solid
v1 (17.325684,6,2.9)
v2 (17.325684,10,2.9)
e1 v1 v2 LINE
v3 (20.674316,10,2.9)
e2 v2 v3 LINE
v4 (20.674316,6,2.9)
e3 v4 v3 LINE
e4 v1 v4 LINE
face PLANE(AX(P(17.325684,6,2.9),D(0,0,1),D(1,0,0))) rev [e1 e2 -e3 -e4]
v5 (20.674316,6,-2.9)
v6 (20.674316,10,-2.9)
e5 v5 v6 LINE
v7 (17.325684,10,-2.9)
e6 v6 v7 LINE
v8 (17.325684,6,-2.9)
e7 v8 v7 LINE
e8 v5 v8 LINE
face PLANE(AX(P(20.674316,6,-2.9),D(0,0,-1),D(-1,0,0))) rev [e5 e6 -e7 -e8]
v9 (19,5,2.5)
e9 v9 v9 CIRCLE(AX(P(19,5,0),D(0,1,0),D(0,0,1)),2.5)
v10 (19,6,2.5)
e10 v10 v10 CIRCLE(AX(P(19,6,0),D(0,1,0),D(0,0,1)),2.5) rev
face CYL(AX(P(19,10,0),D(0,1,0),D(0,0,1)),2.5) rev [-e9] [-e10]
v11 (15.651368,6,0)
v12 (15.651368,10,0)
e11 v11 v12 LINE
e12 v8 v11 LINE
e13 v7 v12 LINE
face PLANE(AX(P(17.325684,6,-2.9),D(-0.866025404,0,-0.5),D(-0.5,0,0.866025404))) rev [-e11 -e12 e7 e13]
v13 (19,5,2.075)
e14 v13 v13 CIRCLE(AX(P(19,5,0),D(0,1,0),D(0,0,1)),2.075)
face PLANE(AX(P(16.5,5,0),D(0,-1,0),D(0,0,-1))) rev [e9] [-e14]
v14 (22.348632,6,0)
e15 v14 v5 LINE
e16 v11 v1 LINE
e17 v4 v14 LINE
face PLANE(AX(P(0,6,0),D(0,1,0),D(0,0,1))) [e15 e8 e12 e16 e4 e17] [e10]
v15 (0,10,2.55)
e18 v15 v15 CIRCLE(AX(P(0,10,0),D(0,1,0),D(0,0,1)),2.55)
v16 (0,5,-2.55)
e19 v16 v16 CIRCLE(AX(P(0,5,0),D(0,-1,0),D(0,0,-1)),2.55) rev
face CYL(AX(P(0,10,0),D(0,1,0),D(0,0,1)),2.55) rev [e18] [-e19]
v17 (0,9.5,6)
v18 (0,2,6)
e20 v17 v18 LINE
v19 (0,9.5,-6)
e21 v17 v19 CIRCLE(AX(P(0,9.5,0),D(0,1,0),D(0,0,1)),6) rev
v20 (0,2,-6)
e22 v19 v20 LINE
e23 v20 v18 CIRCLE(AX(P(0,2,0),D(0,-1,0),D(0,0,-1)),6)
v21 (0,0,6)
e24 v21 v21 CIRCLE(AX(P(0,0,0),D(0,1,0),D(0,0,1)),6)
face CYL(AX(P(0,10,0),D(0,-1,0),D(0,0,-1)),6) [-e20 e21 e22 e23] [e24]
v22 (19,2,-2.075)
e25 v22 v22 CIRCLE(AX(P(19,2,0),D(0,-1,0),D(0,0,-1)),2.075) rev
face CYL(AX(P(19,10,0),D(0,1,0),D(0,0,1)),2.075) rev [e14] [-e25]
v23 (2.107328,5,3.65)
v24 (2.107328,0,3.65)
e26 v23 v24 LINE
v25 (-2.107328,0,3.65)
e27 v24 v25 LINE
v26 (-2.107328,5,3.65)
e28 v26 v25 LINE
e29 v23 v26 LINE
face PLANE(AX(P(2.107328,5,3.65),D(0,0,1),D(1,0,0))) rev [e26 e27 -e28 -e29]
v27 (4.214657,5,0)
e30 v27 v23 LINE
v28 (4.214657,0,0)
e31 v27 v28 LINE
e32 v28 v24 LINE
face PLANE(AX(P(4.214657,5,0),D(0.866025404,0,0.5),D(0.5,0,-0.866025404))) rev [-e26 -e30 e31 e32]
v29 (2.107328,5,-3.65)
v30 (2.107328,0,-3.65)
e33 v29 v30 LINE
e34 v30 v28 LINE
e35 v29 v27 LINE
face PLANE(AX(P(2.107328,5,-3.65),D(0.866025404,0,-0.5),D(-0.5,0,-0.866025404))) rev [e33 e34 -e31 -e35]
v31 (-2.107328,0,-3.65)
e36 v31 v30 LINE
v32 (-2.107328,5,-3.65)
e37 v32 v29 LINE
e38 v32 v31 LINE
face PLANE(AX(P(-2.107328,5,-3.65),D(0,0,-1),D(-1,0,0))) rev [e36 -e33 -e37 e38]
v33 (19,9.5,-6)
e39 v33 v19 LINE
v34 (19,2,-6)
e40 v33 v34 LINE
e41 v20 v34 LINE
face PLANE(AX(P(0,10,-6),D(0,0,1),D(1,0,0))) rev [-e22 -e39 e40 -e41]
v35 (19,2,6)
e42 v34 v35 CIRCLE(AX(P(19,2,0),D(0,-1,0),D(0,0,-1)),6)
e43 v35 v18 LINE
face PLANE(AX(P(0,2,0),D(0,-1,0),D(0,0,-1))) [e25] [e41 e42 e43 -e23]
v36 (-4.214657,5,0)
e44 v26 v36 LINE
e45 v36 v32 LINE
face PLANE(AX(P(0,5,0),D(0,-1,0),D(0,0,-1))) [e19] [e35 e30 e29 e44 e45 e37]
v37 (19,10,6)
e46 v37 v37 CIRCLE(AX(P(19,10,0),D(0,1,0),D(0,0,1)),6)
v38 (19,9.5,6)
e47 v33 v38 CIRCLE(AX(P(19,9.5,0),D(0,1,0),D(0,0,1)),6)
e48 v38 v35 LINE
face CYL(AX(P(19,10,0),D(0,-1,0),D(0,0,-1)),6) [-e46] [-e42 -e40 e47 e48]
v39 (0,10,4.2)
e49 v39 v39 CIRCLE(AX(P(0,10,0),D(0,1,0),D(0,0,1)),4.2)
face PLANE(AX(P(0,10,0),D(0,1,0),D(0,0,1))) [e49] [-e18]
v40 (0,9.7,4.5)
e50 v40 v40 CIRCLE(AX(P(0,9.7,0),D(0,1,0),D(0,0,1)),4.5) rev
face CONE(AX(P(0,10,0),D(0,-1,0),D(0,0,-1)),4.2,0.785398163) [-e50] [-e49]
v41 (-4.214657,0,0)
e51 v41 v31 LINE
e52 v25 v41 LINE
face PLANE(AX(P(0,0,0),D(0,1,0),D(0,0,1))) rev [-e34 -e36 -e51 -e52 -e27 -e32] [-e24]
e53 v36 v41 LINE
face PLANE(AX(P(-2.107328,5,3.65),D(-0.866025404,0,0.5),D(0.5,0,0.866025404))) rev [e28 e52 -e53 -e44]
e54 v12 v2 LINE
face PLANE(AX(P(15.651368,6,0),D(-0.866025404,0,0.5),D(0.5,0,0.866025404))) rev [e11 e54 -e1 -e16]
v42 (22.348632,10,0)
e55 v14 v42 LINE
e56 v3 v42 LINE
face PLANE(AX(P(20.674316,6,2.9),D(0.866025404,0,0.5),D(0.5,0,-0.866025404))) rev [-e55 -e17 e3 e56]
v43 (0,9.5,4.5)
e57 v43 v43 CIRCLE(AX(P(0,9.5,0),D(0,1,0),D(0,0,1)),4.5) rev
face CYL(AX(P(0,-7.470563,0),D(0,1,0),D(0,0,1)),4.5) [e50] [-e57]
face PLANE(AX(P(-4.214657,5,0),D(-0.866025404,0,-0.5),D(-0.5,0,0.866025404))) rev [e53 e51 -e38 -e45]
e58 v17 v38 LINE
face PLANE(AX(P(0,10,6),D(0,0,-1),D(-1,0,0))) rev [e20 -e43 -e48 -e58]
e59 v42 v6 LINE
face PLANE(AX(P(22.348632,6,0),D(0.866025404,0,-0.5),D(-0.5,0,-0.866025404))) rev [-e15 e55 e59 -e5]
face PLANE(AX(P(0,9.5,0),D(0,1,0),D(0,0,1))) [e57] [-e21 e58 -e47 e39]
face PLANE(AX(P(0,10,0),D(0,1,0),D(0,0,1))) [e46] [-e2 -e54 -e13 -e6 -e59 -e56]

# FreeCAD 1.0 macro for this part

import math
import FreeCAD as App
import Part
import Sketcher
from FreeCAD import Vector
Q = App.Units.Quantity


def edges_at(feature, points):
    """Names of the edges that pass closest to the given points."""
    edges = feature.Shape.Edges
    near = lambda p: min(range(len(edges)), key=lambda i: edges[i].distToShape(Part.Vertex(*p))[0])
    return sorted({f"Edge{near(p) + 1}" for p in points})

doc = App.newDocument("Part")
body = doc.addObject("PartDesign::Body", "Body")

# Sketch on XZ plane
sketch1 = body.newObject("Sketcher::SketchObject", "Sketch")
sketch1.AttachmentSupport = (doc.getObject("XZ_Plane"), [""])
sketch1.MapMode = "FlatFace"
sketch1.addGeometry([
    Part.LineSegment(Vector(19, -6, 0), Vector(0, -6, 0)),
    Part.ArcOfCircle(Part.Circle(Vector(0, 0, 0), Vector(0, 0, 1), 6), math.radians(90), math.radians(270)),
    Part.LineSegment(Vector(0, 6, 0), Vector(19, 6, 0)),
    Part.ArcOfCircle(Part.Circle(Vector(19, 0, 0), Vector(0, 0, 1), 6), math.radians(-90), math.radians(90)),
], False)
sketch1.addConstraint([
    Sketcher.Constraint("Tangent", 0, 2, 1, 2),
    Sketcher.Constraint("Tangent", 1, 1, 2, 1),
    Sketcher.Constraint("Tangent", 2, 2, 3, 2),
    Sketcher.Constraint("Tangent", 3, 1, 0, 1),
    Sketcher.Constraint("Horizontal", 0),
    Sketcher.Constraint("Horizontal", 2),
    Sketcher.Constraint("Coincident", 1, 3, -1, 1),
    Sketcher.Constraint("Radius", 1, Q("6 mm")),
    Sketcher.Constraint("DistanceX", 0, 2, 0, 1, Q("19 mm")),
])
pad1 = body.newObject("PartDesign::Pad", "Pad")
pad1.Profile = sketch1
pad1.Length = 10
pad1.Reversed = True

# Sketch on XY plane
sketch2 = body.newObject("Sketcher::SketchObject", "Sketch001")
sketch2.AttachmentSupport = (doc.getObject("XY_Plane"), [""])
sketch2.MapMode = "FlatFace"
sketch2.addGeometry([
    Part.LineSegment(Vector(0, 10, 0), Vector(-2.55, 10, 0)),  # 0
    Part.LineSegment(Vector(-2.55, 10, 0), Vector(-2.55, 5, 0)),  # 1
    Part.LineSegment(Vector(-2.55, 5, 0), Vector(-2.1, 5, 0)),  # 2
    Part.LineSegment(Vector(-2.1, 5, 0), Vector(-2.1, 2, 0)),  # 3
    Part.LineSegment(Vector(-2.1, 2, 0), Vector(-2.55, 2, 0)),  # 4
    Part.LineSegment(Vector(-2.55, 2, 0), Vector(-2.55, 0, 0)),  # 5
    Part.LineSegment(Vector(-2.55, 0, 0), Vector(0, 0, 0)),  # 6
    Part.LineSegment(Vector(0, 0, 0), Vector(0, 10, 0)),  # 7
], False)
sketch2.addConstraint([
    Sketcher.Constraint("Coincident", 0, 2, 1, 1),
    Sketcher.Constraint("Coincident", 1, 2, 2, 1),
    Sketcher.Constraint("Coincident", 2, 2, 3, 1),
    Sketcher.Constraint("Coincident", 3, 2, 4, 1),
    Sketcher.Constraint("Coincident", 4, 2, 5, 1),
    Sketcher.Constraint("Coincident", 5, 2, 6, 1),
    Sketcher.Constraint("Coincident", 6, 2, 7, 1),
    Sketcher.Constraint("Coincident", 7, 2, 0, 1),
    Sketcher.Constraint("Horizontal", 0),
    Sketcher.Constraint("Vertical", 1),
    Sketcher.Constraint("Horizontal", 2),
    Sketcher.Constraint("Vertical", 3),
    Sketcher.Constraint("Horizontal", 4),
    Sketcher.Constraint("Vertical", 5),
    Sketcher.Constraint("Horizontal", 6),
    Sketcher.Constraint("Vertical", 7),
    Sketcher.Constraint("Coincident", 6, 2, -1, 1),
    Sketcher.Constraint("Vertical", 1, 2, 4, 2),
    Sketcher.Constraint("DistanceY", 1, 2, 1, 1, Q("5 mm")),
    Sketcher.Constraint("DistanceY", 3, 2, 3, 1, Q("3 mm")),
    Sketcher.Constraint("DistanceY", 5, 2, 5, 1, Q("2 mm")),
    Sketcher.Constraint("DistanceX", 0, 2, 0, 1, Q("2.55 mm")),
    Sketcher.Constraint("DistanceX", 2, 1, 2, 2, Q("0.45 mm")),
])
groove = body.newObject("PartDesign::Groove", "Groove")
groove.Profile = sketch2
groove.ReferenceAxis = (sketch2, ["V_Axis"])
groove.Angle = 360

# Sketch on XY plane
sketch3 = body.newObject("Sketcher::SketchObject", "Sketch002")
sketch3.AttachmentSupport = (doc.getObject("XY_Plane"), [""])
sketch3.MapMode = "FlatFace"
sketch3.addGeometry([
    Part.LineSegment(Vector(19, 10, 0), Vector(16.5, 10, 0)),  # 0
    Part.LineSegment(Vector(16.5, 10, 0), Vector(16.5, 5, 0)),  # 1
    Part.LineSegment(Vector(16.5, 5, 0), Vector(16.925, 5, 0)),  # 2
    Part.LineSegment(Vector(16.925, 5, 0), Vector(16.925, 0, 0)),  # 3
    Part.LineSegment(Vector(16.925, 0, 0), Vector(19, 0, 0)),  # 4
    Part.LineSegment(Vector(19, 0, 0), Vector(19, 10, 0)),  # 5
], False)
sketch3.addGeometry(Part.LineSegment(Vector(19, 10, 0), Vector(19, 0, 0)), True)  # axis
sketch3.addConstraint([
    Sketcher.Constraint("Coincident", 0, 2, 1, 1),
    Sketcher.Constraint("Coincident", 1, 2, 2, 1),
    Sketcher.Constraint("Coincident", 2, 2, 3, 1),
    Sketcher.Constraint("Coincident", 3, 2, 4, 1),
    Sketcher.Constraint("Coincident", 4, 2, 5, 1),
    Sketcher.Constraint("Coincident", 5, 2, 0, 1),
    Sketcher.Constraint("Horizontal", 0),
    Sketcher.Constraint("Vertical", 1),
    Sketcher.Constraint("Horizontal", 2),
    Sketcher.Constraint("Vertical", 3),
    Sketcher.Constraint("Horizontal", 4),
    Sketcher.Constraint("Vertical", 5),
    Sketcher.Constraint("Vertical", 6),
    Sketcher.Constraint("Coincident", 6, 1, 5, 2),
    Sketcher.Constraint("PointOnObject", 3, 2, -1),
    Sketcher.Constraint("PointOnObject", 6, 2, -1),
    Sketcher.Constraint("Equal", 1, 3),
    Sketcher.Constraint("DistanceY", 1, 2, 1, 1, Q("5 mm")),
    Sketcher.Constraint("DistanceX", 0, 2, 0, 1, Q("2.5 mm")),
    Sketcher.Constraint("DistanceX", -1, 1, 4, 2, Q("19 mm")),
    Sketcher.Constraint("DistanceX", 2, 1, 2, 2, Q("0.425 mm")),
])
groove2 = body.newObject("PartDesign::Groove", "Groove001")
groove2.Profile = sketch3
groove2.ReferenceAxis = (sketch3, ["Axis0"])
groove2.Angle = 360

# Sketch on XZ plane
sketch4 = body.newObject("Sketcher::SketchObject", "Sketch003")
sketch4.AttachmentSupport = (doc.getObject("XZ_Plane"), [""])
sketch4.MapMode = "FlatFace"
sketch4.addGeometry([
    Part.LineSegment(Vector(-4.214657, 0, 0), Vector(-2.107328, -3.65, 0)),  # 0
    Part.LineSegment(Vector(-2.107328, -3.65, 0), Vector(2.107328, -3.65, 0)),  # 1
    Part.LineSegment(Vector(2.107328, -3.65, 0), Vector(4.214657, 0, 0)),  # 2
    Part.LineSegment(Vector(4.214657, 0, 0), Vector(2.107328, 3.65, 0)),  # 3
    Part.LineSegment(Vector(2.107328, 3.65, 0), Vector(-2.107328, 3.65, 0)),  # 4
    Part.LineSegment(Vector(-2.107328, 3.65, 0), Vector(-4.214657, 0, 0)),  # 5
], False)
sketch4.addConstraint([
    Sketcher.Constraint("Coincident", 0, 2, 1, 1),
    Sketcher.Constraint("Coincident", 1, 2, 2, 1),
    Sketcher.Constraint("Coincident", 2, 2, 3, 1),
    Sketcher.Constraint("Coincident", 3, 2, 4, 1),
    Sketcher.Constraint("Coincident", 4, 2, 5, 1),
    Sketcher.Constraint("Coincident", 5, 2, 0, 1),
    Sketcher.Constraint("Horizontal", 1),
    Sketcher.Constraint("Horizontal", 4),
    Sketcher.Constraint("Symmetric", 0, 2, 3, 2, -1, 1),
    Sketcher.Constraint("Symmetric", 2, 2, 5, 2, -1, 1),
    Sketcher.Constraint("PointOnObject", 2, 2, -1),
    Sketcher.Constraint("Parallel", 2, 5),
    Sketcher.Constraint("Vertical", 1, 2, 3, 2),
    Sketcher.Constraint("Angle", 0, Q("-60 deg")),
    Sketcher.Constraint("DistanceY", 1, 2, 3, 2, Q("7.3 mm")),
    Sketcher.Constraint("DistanceX", 1, 1, 1, 2, Q("4.214657 mm")),
])
pocket1 = body.newObject("PartDesign::Pocket", "Pocket")
pocket1.Profile = sketch4
pocket1.Length = 5

# Sketch on XZ plane
sketch5 = body.newObject("Sketcher::SketchObject", "Sketch004")
sketch5.AttachmentSupport = (doc.getObject("XZ_Plane"), [""])
sketch5.MapMode = "FlatFace"
sketch5.addGeometry([
    Part.Circle(Vector(0, 0, 0), Vector(0, 0, 1), 27.317981),
    Part.Circle(Vector(0, 0, 0), Vector(0, 0, 1), 6),
], False)
sketch5.addConstraint([
    Sketcher.Constraint("Coincident", 0, 3, -1, 1),
    Sketcher.Constraint("Coincident", 1, 3, -1, 1),
    Sketcher.Constraint("Diameter", 1, Q("12 mm")),
    Sketcher.Constraint("Diameter", 0, Q("54.635963 mm")),
])
pocket2 = body.newObject("PartDesign::Pocket", "Pocket001")
pocket2.Profile = sketch5
pocket2.Length = 2

# Sketch on XZ plane
sketch6 = body.newObject("Sketcher::SketchObject", "Sketch005")
sketch6.AttachmentSupport = (doc.getObject("XZ_Plane"), [""])
sketch6.MapMode = "FlatFace"
sketch6.AttachmentOffset = App.Placement(Vector(0, 0, -10), App.Rotation())
sketch6.addGeometry([
    Part.LineSegment(Vector(17.325684, -2.9, 0), Vector(15.651368, 0, 0)),  # 0
    Part.LineSegment(Vector(15.651368, 0, 0), Vector(17.325684, 2.9, 0)),  # 1
    Part.LineSegment(Vector(17.325684, 2.9, 0), Vector(20.674316, 2.9, 0)),  # 2
    Part.LineSegment(Vector(20.674316, 2.9, 0), Vector(22.348632, 0, 0)),  # 3
    Part.LineSegment(Vector(22.348632, 0, 0), Vector(20.674316, -2.9, 0)),  # 4
    Part.LineSegment(Vector(20.674316, -2.9, 0), Vector(17.325684, -2.9, 0)),  # 5
], False)
sketch6.addConstraint([
    Sketcher.Constraint("Coincident", 0, 2, 1, 1),
    Sketcher.Constraint("Coincident", 1, 2, 2, 1),
    Sketcher.Constraint("Coincident", 2, 2, 3, 1),
    Sketcher.Constraint("Coincident", 3, 2, 4, 1),
    Sketcher.Constraint("Coincident", 4, 2, 5, 1),
    Sketcher.Constraint("Coincident", 5, 2, 0, 1),
    Sketcher.Constraint("Horizontal", 2),
    Sketcher.Constraint("Horizontal", 5),
    Sketcher.Constraint("Symmetric", 2, 2, 4, 2, -1),
    Sketcher.Constraint("PointOnObject", 0, 2, -1),
    Sketcher.Constraint("PointOnObject", 3, 2, -1),
    Sketcher.Constraint("Parallel", 0, 3),
    Sketcher.Constraint("Parallel", 1, 4),
    Sketcher.Constraint("Angle", 0, Q("120 deg")),
    Sketcher.Constraint("DistanceY", -1, 1, 1, 2, Q("2.9 mm")),
    Sketcher.Constraint("DistanceX", 2, 1, 2, 2, Q("3.348632 mm")),
    Sketcher.Constraint("DistanceX", -1, 1, 0, 2, Q("15.651368 mm")),
])
pocket3 = body.newObject("PartDesign::Pocket", "Pocket002")
pocket3.Profile = sketch6
pocket3.Length = 4
pocket3.Reversed = True

# Sketch on XZ plane
sketch7 = body.newObject("Sketcher::SketchObject", "Sketch006")
sketch7.AttachmentSupport = (doc.getObject("XZ_Plane"), [""])
sketch7.MapMode = "FlatFace"
sketch7.AttachmentOffset = App.Placement(Vector(0, 0, -9.5), App.Rotation())
sketch7.addGeometry([
    Part.LineSegment(Vector(-8.982472, -8.456033, 0), Vector(-8.982472, 8.317975, 0)),  # 0
    Part.LineSegment(Vector(-8.982472, 8.317975, 0), Vector(27.292184, 8.317975, 0)),  # 1
    Part.LineSegment(Vector(27.292184, 8.317975, 0), Vector(27.292184, -8.456033, 0)),  # 2
    Part.LineSegment(Vector(27.292184, -8.456033, 0), Vector(-8.982472, -8.456033, 0)),  # 3
    Part.Circle(Vector(0, 0, 0), Vector(0, 0, 1), 6),  # 4
    Part.Circle(Vector(19, 0, 0), Vector(0, 0, 1), 6),  # 5
], False)
sketch7.addConstraint([
    Sketcher.Constraint("Coincident", 0, 2, 1, 1),
    Sketcher.Constraint("Coincident", 1, 2, 2, 1),
    Sketcher.Constraint("Coincident", 2, 2, 3, 1),
    Sketcher.Constraint("Coincident", 3, 2, 0, 1),
    Sketcher.Constraint("Vertical", 0),
    Sketcher.Constraint("Horizontal", 1),
    Sketcher.Constraint("Vertical", 2),
    Sketcher.Constraint("Horizontal", 3),
    Sketcher.Constraint("Coincident", 4, 3, -1, 1),
    Sketcher.Constraint("Equal", 4, 5),
    Sketcher.Constraint("PointOnObject", 5, 3, -1),
    Sketcher.Constraint("Diameter", 4, Q("12 mm")),
    Sketcher.Constraint("DistanceX", -1, 1, 5, 3, Q("19 mm")),
    Sketcher.Constraint("DistanceY", 0, 1, 0, 2, Q("16.774008 mm")),
    Sketcher.Constraint("DistanceX", 1, 1, 1, 2, Q("36.274656 mm")),
    Sketcher.Constraint("DistanceX", 0, 2, -1, 1, Q("8.982472 mm")),
    Sketcher.Constraint("DistanceY", -1, 1, 0, 2, Q("8.317975 mm")),
])
pocket4 = body.newObject("PartDesign::Pocket", "Pocket003")
pocket4.Profile = sketch7
pocket4.Length = 0.5

# Sketch on XZ plane
sketch8 = body.newObject("Sketcher::SketchObject", "Sketch007")
sketch8.AttachmentSupport = (doc.getObject("XZ_Plane"), [""])
sketch8.MapMode = "FlatFace"
sketch8.AttachmentOffset = App.Placement(Vector(0, 0, -9.5), App.Rotation())
sketch8.addGeometry([
    Part.Circle(Vector(0, 0, 0), Vector(0, 0, 1), 6),
    Part.Circle(Vector(0, 0, 0), Vector(0, 0, 1), 4.5),
], False)
sketch8.addConstraint([
    Sketcher.Constraint("Coincident", 0, 3, -1, 1),
    Sketcher.Constraint("Coincident", 1, 3, -1, 1),
    Sketcher.Constraint("Diameter", 0, Q("12 mm")),
    Sketcher.Constraint("Diameter", 1, Q("9 mm")),
])
pocket5 = body.newObject("PartDesign::Pocket", "Pocket004")
pocket5.Profile = sketch8
pocket5.Length = 0.5
doc.recompute()

chamfer = body.newObject("PartDesign::Chamfer", "Chamfer")
chamfer.Base = (pocket5, edges_at(pocket5, [(0, 10, -4.5)]))
chamfer.Size = 0.3

doc.recompute()
